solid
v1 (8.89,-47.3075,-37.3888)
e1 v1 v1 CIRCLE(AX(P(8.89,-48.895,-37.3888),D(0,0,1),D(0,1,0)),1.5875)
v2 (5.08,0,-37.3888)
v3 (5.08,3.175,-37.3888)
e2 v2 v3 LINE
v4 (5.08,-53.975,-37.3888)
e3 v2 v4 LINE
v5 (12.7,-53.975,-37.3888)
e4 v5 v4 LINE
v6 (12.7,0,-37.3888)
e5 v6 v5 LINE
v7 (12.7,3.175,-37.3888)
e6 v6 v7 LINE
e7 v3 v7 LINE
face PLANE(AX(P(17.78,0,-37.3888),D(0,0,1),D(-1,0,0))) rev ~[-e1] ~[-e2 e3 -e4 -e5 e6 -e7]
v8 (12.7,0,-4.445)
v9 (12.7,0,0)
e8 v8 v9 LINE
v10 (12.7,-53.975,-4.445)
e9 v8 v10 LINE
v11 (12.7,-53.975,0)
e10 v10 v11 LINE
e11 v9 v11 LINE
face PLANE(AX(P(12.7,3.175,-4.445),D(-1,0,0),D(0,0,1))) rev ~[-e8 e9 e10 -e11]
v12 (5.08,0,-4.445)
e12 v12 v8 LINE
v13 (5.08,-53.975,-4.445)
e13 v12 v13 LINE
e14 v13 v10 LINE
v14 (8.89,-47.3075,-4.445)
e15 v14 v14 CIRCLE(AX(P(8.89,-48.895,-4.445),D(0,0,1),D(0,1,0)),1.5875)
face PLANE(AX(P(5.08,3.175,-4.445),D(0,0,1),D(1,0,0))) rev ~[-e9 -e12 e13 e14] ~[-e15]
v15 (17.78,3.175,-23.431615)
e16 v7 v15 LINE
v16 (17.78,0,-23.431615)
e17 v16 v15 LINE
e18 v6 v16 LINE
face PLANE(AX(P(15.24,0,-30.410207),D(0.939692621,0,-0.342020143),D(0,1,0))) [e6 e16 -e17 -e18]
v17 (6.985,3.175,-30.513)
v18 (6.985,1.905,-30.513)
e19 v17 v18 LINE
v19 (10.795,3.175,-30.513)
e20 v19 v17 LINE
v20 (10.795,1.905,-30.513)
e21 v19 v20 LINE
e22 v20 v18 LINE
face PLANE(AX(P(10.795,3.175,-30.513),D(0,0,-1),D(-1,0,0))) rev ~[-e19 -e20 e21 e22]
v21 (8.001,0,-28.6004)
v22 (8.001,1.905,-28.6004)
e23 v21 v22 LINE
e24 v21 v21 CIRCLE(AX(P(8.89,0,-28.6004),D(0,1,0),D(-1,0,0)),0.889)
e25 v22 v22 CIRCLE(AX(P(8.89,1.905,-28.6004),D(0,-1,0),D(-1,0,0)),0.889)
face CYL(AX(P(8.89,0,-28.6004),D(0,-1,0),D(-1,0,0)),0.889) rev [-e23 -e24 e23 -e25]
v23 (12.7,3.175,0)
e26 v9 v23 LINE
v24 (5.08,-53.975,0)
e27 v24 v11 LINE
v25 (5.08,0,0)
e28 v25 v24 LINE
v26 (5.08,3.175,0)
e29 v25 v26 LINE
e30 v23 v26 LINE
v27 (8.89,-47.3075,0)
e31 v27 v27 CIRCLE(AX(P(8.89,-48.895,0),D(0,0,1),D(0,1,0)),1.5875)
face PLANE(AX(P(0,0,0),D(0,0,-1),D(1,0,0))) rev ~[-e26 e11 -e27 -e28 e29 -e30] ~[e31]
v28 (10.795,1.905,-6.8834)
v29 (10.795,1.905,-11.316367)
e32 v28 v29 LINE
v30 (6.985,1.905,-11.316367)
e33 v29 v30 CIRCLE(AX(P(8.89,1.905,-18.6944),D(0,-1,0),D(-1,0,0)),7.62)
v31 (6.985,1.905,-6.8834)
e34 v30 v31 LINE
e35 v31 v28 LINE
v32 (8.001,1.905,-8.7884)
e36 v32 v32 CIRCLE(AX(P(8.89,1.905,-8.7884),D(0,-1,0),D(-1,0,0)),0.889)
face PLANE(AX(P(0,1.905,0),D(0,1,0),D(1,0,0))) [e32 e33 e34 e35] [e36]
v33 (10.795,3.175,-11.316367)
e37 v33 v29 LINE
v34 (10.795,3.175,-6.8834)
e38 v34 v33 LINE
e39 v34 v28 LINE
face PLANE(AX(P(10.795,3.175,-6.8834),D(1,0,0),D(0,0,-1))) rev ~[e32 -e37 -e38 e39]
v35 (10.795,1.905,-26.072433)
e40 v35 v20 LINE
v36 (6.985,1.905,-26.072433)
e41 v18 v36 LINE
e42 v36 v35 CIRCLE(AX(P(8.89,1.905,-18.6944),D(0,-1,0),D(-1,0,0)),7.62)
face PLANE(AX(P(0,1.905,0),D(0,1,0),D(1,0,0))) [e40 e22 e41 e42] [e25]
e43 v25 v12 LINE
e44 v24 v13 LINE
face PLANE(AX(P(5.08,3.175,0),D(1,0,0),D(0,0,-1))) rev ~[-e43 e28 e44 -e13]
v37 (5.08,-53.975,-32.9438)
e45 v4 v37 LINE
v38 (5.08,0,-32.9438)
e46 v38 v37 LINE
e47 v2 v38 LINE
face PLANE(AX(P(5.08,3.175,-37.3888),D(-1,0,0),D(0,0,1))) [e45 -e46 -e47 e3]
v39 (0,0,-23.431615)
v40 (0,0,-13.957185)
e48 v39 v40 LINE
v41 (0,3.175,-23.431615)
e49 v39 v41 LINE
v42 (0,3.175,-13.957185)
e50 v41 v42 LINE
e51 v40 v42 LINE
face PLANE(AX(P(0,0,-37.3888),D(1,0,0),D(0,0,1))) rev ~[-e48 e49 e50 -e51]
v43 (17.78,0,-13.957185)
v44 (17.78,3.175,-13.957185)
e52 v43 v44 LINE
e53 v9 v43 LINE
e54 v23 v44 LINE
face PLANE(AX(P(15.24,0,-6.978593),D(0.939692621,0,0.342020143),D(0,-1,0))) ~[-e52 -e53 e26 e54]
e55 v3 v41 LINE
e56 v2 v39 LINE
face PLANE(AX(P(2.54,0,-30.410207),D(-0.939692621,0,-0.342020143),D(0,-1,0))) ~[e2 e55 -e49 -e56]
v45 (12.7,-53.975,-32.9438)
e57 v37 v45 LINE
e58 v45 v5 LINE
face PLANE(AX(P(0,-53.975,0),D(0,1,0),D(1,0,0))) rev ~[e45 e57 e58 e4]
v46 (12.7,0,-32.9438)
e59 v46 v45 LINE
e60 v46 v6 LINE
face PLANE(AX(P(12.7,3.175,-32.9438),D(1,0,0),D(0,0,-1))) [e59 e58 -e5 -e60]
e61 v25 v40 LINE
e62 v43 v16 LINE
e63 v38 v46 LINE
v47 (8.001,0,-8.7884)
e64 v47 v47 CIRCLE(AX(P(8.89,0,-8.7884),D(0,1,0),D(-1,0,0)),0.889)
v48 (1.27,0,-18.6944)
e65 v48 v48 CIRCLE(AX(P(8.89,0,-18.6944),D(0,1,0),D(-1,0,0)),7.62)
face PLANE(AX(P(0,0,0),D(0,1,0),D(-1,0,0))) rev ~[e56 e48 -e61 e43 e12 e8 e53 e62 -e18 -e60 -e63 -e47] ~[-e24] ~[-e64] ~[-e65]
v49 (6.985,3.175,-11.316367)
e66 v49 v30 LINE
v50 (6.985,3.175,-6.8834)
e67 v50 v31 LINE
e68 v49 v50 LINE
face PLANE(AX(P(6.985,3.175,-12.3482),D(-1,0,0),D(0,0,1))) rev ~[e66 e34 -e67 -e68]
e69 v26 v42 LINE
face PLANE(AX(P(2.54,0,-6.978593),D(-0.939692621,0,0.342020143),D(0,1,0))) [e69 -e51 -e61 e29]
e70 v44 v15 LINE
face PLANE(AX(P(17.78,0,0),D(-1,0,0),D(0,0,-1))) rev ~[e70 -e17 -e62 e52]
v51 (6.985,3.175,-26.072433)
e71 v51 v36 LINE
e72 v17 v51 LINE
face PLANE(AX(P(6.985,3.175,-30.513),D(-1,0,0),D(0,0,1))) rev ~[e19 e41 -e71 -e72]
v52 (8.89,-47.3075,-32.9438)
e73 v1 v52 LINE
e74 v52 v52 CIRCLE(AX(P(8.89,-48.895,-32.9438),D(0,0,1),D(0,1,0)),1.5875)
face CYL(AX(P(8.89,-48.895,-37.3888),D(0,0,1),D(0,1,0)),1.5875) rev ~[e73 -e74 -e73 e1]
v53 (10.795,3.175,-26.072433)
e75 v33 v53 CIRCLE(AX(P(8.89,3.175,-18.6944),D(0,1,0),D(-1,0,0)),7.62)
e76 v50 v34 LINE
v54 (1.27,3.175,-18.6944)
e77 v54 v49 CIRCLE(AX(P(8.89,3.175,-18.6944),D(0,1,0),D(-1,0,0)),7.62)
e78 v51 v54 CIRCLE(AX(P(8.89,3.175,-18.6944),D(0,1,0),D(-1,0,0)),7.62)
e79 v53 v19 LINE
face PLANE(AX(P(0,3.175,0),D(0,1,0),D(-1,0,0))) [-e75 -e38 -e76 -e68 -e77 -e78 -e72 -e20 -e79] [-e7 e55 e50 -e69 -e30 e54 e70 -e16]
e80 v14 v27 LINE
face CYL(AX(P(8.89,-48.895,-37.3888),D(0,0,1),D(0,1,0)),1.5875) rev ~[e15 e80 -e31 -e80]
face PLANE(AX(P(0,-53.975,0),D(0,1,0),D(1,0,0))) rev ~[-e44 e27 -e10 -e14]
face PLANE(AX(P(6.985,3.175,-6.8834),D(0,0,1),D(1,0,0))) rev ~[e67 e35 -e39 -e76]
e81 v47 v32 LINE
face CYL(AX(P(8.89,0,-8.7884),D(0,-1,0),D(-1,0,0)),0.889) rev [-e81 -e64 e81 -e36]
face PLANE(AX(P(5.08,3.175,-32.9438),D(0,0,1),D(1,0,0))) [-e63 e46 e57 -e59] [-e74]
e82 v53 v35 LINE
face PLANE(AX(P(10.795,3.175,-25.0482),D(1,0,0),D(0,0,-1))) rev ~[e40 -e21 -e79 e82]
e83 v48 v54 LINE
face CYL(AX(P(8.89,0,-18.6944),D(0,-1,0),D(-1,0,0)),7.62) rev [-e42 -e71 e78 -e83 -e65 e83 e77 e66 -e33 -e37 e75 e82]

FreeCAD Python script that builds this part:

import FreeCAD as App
import Part
import Sketcher
Q = App.Units.Quantity


def edges_at(feature, points):
    """Names of the edges that pass closest to the given points."""
    edges = feature.Shape.Edges
    near = lambda p: min(range(len(edges)), key=lambda i: edges[i].distToShape(Part.Vertex(*p))[0])
    return sorted({f"Edge{near(p) + 1}" for p in points})

doc = App.newDocument("Part")
body = doc.addObject("PartDesign::Body", "Body")

# Sketch on XZ plane
sketch1 = body.newObject("Sketcher::SketchObject", "Sketch")
sketch1.AttachmentSupport = (doc.getObject("XZ_Plane"), [""])
sketch1.MapMode = "FlatFace"
sketch1.addGeometry([
    Part.LineSegment(App.Vector(0, -37.4, 0), App.Vector(0, 0, 0)),  # 0
    Part.LineSegment(App.Vector(0, 0, 0), App.Vector(17.8, 0, 0)),  # 1
    Part.LineSegment(App.Vector(17.8, 0, 0), App.Vector(17.8, -37.4, 0)),  # 2
    Part.LineSegment(App.Vector(17.8, -37.4, 0), App.Vector(0, -37.4, 0)),  # 3
    Part.Circle(App.Vector(8.9, -28.6, 0), App.Vector(0, 0, 1), 0.9),  # 4
    Part.Circle(App.Vector(8.9, -18.7, 0), App.Vector(0, 0, 1), 7.6),  # 5
    Part.Circle(App.Vector(8.9, -8.8, 0), App.Vector(0, 0, 1), 0.9),  # 6
], False)
sketch1.addConstraint([
    Sketcher.Constraint("Coincident", 0, 2, 1, 1),
    Sketcher.Constraint("Coincident", 1, 2, 2, 1),
    Sketcher.Constraint("Coincident", 2, 2, 3, 1),
    Sketcher.Constraint("Coincident", 3, 2, 0, 1),
    Sketcher.Constraint("Vertical", 0),
    Sketcher.Constraint("Horizontal", 1),
    Sketcher.Constraint("Vertical", 2),
    Sketcher.Constraint("Horizontal", 3),
    Sketcher.Constraint("Coincident", 0, 2, -1, 1),
    Sketcher.Constraint("Equal", 4, 6),
    Sketcher.Constraint("Vertical", 4, 3, 5, 3),
    Sketcher.Constraint("Vertical", 5, 3, 6, 3),
    Sketcher.Constraint("Diameter", 5, Q("0.6 in")),
    Sketcher.Constraint("Diameter", 4, Q("0.07 in")),
    Sketcher.Constraint("DistanceX", 1, 1, 1, 2, Q("0.7 in")),
    Sketcher.Constraint("DistanceY", 0, 1, 0, 2, Q("1.472 in")),
    Sketcher.Constraint("DistanceY", 4, 3, 6, 3, Q("0.78 in")),
    Sketcher.Constraint("DistanceX", -1, 1, 4, 3, Q("0.35 in")),
    Sketcher.Constraint("DistanceY", 4, 3, 5, 3, Q("0.39 in")),
    Sketcher.Constraint("DistanceY", 4, 3, -1, 1, Q("1.126 in")),
])
pad1 = body.newObject("PartDesign::Pad", "Pad")
pad1.Profile = sketch1
pad1.Length = Q("0.125 in")
pad1.Reversed = True

# Sketch on XZ plane
sketch2 = body.newObject("Sketcher::SketchObject", "Sketch001")
sketch2.AttachmentSupport = (doc.getObject("XZ_Plane"), [""])
sketch2.MapMode = "FlatFace"
sketch2.AttachmentOffset = App.Placement(App.Vector(0, 0, -0.125 * 25.4), App.Rotation())
sketch2.addGeometry([
    Part.LineSegment(App.Vector(7, -12.3, 0), App.Vector(7, -6.9, 0)),  # 0
    Part.LineSegment(App.Vector(7, -6.9, 0), App.Vector(10.8, -6.9, 0)),  # 1
    Part.LineSegment(App.Vector(10.8, -6.9, 0), App.Vector(10.8, -12.3, 0)),  # 2
    Part.LineSegment(App.Vector(10.8, -12.3, 0), App.Vector(7, -12.3, 0)),  # 3
    Part.LineSegment(App.Vector(7, -30.5, 0), App.Vector(7, -25, 0)),  # 4
    Part.LineSegment(App.Vector(7, -25, 0), App.Vector(10.8, -25, 0)),  # 5
    Part.LineSegment(App.Vector(10.8, -25, 0), App.Vector(10.8, -30.5, 0)),  # 6
    Part.LineSegment(App.Vector(10.8, -30.5, 0), App.Vector(7, -30.5, 0)),  # 7
], False)
sketch2.addConstraint([
    Sketcher.Constraint("Coincident", 0, 2, 1, 1),
    Sketcher.Constraint("Coincident", 1, 2, 2, 1),
    Sketcher.Constraint("Coincident", 2, 2, 3, 1),
    Sketcher.Constraint("Coincident", 3, 2, 0, 1),
    Sketcher.Constraint("Coincident", 4, 2, 5, 1),
    Sketcher.Constraint("Coincident", 5, 2, 6, 1),
    Sketcher.Constraint("Coincident", 6, 2, 7, 1),
    Sketcher.Constraint("Coincident", 7, 2, 4, 1),
    Sketcher.Constraint("Vertical", 0),
    Sketcher.Constraint("Horizontal", 1),
    Sketcher.Constraint("Vertical", 2),
    Sketcher.Constraint("Horizontal", 3),
    Sketcher.Constraint("Vertical", 4),
    Sketcher.Constraint("Horizontal", 5),
    Sketcher.Constraint("Vertical", 6),
    Sketcher.Constraint("Horizontal", 7),
    Sketcher.Constraint("Vertical", 3, 2, 4, 2),
    Sketcher.Constraint("Vertical", 2, 2, 5, 2),
    Sketcher.Constraint("Equal", 2, 4),
    Sketcher.Constraint("DistanceX", 1, 1, 1, 2, Q("0.15 in")),
    Sketcher.Constraint("DistanceY", 4, 2, 3, 2, Q("0.5 in")),
    Sketcher.Constraint("DistanceX", -1, 1, 0, 2, Q("0.275 in")),
    Sketcher.Constraint("DistanceY", 0, 2, -1, 1, Q("0.271 in")),
    Sketcher.Constraint("DistanceY", 0, 1, 0, 2, Q("5.4648 mm")),
])
pocket1 = body.newObject("PartDesign::Pocket", "Pocket")
pocket1.Profile = sketch2
pocket1.Length = Q("0.05 in")
pocket1.Reversed = True

# Sketch on XZ plane
sketch3 = body.newObject("Sketcher::SketchObject", "Sketch002")
sketch3.AttachmentSupport = (doc.getObject("XZ_Plane"), [""])
sketch3.MapMode = "FlatFace"
sketch3.AttachmentOffset = App.Placement(App.Vector(0, 0, -0.125 * 25.4), App.Rotation())
sketch3.addGeometry([
    Part.LineSegment(App.Vector(12.7, -32.9, 0), App.Vector(12.7, -37.4, 0)),  # 0
    Part.LineSegment(App.Vector(12.7, -37.4, 0), App.Vector(5.1, -37.4, 0)),  # 1
    Part.LineSegment(App.Vector(5.1, -37.4, 0), App.Vector(5.1, -32.9, 0)),  # 2
    Part.LineSegment(App.Vector(5.1, -32.9, 0), App.Vector(12.7, -32.9, 0)),  # 3
    Part.LineSegment(App.Vector(5.1, -4.4, 0), App.Vector(5.1, 0, 0)),  # 4
    Part.LineSegment(App.Vector(5.1, 0, 0), App.Vector(12.7, 0, 0)),  # 5
    Part.LineSegment(App.Vector(12.7, 0, 0), App.Vector(12.7, -4.4, 0)),  # 6
    Part.LineSegment(App.Vector(12.7, -4.4, 0), App.Vector(5.1, -4.4, 0)),  # 7
], False)
sketch3.addConstraint([
    Sketcher.Constraint("Coincident", 0, 2, 1, 1),
    Sketcher.Constraint("Coincident", 1, 2, 2, 1),
    Sketcher.Constraint("Coincident", 2, 2, 3, 1),
    Sketcher.Constraint("Coincident", 3, 2, 0, 1),
    Sketcher.Constraint("Coincident", 4, 2, 5, 1),
    Sketcher.Constraint("Coincident", 5, 2, 6, 1),
    Sketcher.Constraint("Coincident", 6, 2, 7, 1),
    Sketcher.Constraint("Coincident", 7, 2, 4, 1),
    Sketcher.Constraint("Vertical", 0),
    Sketcher.Constraint("Horizontal", 1),
    Sketcher.Constraint("Vertical", 2),
    Sketcher.Constraint("Horizontal", 3),
    Sketcher.Constraint("Vertical", 4),
    Sketcher.Constraint("Horizontal", 5),
    Sketcher.Constraint("Vertical", 6),
    Sketcher.Constraint("Horizontal", 7),
    Sketcher.Constraint("PointOnObject", 4, 2, -1),
    Sketcher.Constraint("Vertical", 2, 2, 4, 2),
    Sketcher.Constraint("Vertical", 3, 2, 5, 2),
    Sketcher.Constraint("Equal", 2, 4),
    Sketcher.Constraint("DistanceX", 1, 2, 1, 1, Q("0.3 in")),
    Sketcher.Constraint("DistanceY", 3, 2, 6, 2, Q("1.122 in")),
    Sketcher.Constraint("DistanceX", -1, 1, 0, 2, Q("0.5 in")),
    Sketcher.Constraint("DistanceY", 0, 2, 0, 1, Q("0.175 in")),
])
pad2 = body.newObject("PartDesign::Pad", "Pad001")
pad2.Profile = sketch3
pad2.Length = Q("2.25 in")

# Sketch on XY plane
sketch4 = body.newObject("Sketcher::SketchObject", "Sketch003")
sketch4.AttachmentSupport = (doc.getObject("XY_Plane"), [""])
sketch4.MapMode = "FlatFace"
sketch4.AttachmentOffset = App.Placement(App.Vector(0, 0, -1.472 * 25.4), App.Rotation())
sketch4.addGeometry(Part.Circle(App.Vector(8.9, -48.9, 0), App.Vector(0, 0, 1), 1.6), False)
sketch4.addConstraint([
    Sketcher.Constraint("Diameter", 0, Q("0.125 in")),
    Sketcher.Constraint("DistanceX", -1, 1, 0, 3, Q("0.35 in")),
    Sketcher.Constraint("DistanceY", 0, 3, -1, 1, Q("1.925 in")),
])
doc.recompute()
hole = body.newObject("PartDesign::Hole", "Hole")
hole.Profile = sketch4
hole.ThreadType = "None"
hole.Diameter = Q("0.125 in")
hole.DepthType = "Dimension"
hole.Depth = Q("1.472 in")
hole.DrillPoint = "Flat"
hole.Reversed = True
doc.recompute()

chamfer = body.newObject("PartDesign::Chamfer", "Chamfer")
chamfer.Base = (hole, edges_at(hole, [(17.78, 1.587, -37.389)]))
chamfer.ChamferType = "Distance and Angle"
chamfer.Size = Q("0.2 in")
chamfer.Angle = 70
doc.recompute()

chamfer2 = body.newObject("PartDesign::Chamfer", "Chamfer001")
chamfer2.Base = (chamfer, edges_at(chamfer, [(0, 1.587, -37.389)]))
chamfer2.ChamferType = "Distance and Angle"
chamfer2.Size = Q("0.2 in")
chamfer2.Angle = 70
doc.recompute()

chamfer3 = body.newObject("PartDesign::Chamfer", "Chamfer002")
chamfer3.Base = (chamfer2, edges_at(chamfer2, [(17.78, 1.587, 0)]))
chamfer3.ChamferType = "Distance and Angle"
chamfer3.Size = Q("0.2 in")
chamfer3.Angle = 70
chamfer3.FlipDirection = True
doc.recompute()

chamfer4 = body.newObject("PartDesign::Chamfer", "Chamfer003")
chamfer4.Base = (chamfer3, edges_at(chamfer3, [(0, 1.587, 0)]))
chamfer4.ChamferType = "Distance and Angle"
chamfer4.Size = Q("0.2 in")
chamfer4.Angle = 70

doc.recompute()
